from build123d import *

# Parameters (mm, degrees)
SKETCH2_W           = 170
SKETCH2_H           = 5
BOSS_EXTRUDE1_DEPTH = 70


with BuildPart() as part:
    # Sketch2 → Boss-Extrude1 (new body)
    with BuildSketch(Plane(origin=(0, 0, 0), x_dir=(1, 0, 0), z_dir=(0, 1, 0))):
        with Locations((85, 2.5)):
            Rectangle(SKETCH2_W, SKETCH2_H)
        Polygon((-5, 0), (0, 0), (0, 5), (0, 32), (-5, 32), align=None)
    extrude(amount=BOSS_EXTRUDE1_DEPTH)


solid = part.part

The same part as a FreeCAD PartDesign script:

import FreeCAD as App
import Part
import Sketcher

doc = App.newDocument("Part")
body = doc.addObject("PartDesign::Body", "Body")

sketch1 = body.newObject("Sketcher::SketchObject", "Sketch")
sketch1.AttachmentSupport = (doc.getObject("XZ_Plane"), [""])
sketch1.MapMode = "FlatFace"
sketch1.addGeometry(Part.LineSegment(App.Vector(170, 0, 0), App.Vector(170, -5, 0)), False)
sketch1.addGeometry(Part.LineSegment(App.Vector(170, -5, 0), App.Vector(0, -5, 0)), False)
sketch1.addGeometry(Part.LineSegment(App.Vector(0, -5, 0), App.Vector(0, -32, 0)), False)
sketch1.addGeometry(Part.LineSegment(App.Vector(0, -32, 0), App.Vector(-5, -32, 0)), False)
sketch1.addGeometry(Part.LineSegment(App.Vector(-5, -32, 0), App.Vector(-5, 0, 0)), False)
sketch1.addGeometry(Part.LineSegment(App.Vector(-5, 0, 0), App.Vector(170, 0, 0)), False)
sketch1.addConstraint(Sketcher.Constraint("Coincident", 0, 2, 1, 1))
sketch1.addConstraint(Sketcher.Constraint("Coincident", 1, 2, 2, 1))
sketch1.addConstraint(Sketcher.Constraint("Coincident", 2, 2, 3, 1))
sketch1.addConstraint(Sketcher.Constraint("Coincident", 3, 2, 4, 1))
sketch1.addConstraint(Sketcher.Constraint("Coincident", 4, 2, 5, 1))
sketch1.addConstraint(Sketcher.Constraint("Coincident", 5, 2, 0, 1))
sketch1.addConstraint(Sketcher.Constraint("Vertical", 0))
sketch1.addConstraint(Sketcher.Constraint("Horizontal", 1))
sketch1.addConstraint(Sketcher.Constraint("Vertical", 2))
sketch1.addConstraint(Sketcher.Constraint("Horizontal", 3))
sketch1.addConstraint(Sketcher.Constraint("Vertical", 4))
sketch1.addConstraint(Sketcher.Constraint("Horizontal", 5))
sketch1.addConstraint(Sketcher.Constraint("PointOnObject", 1, 2, -2))
sketch1.addConstraint(Sketcher.Constraint("PointOnObject", 4, 2, -1))
sketch1.addConstraint(Sketcher.Constraint("Equal", 3, 0))
sketch1.addConstraint(Sketcher.Constraint("DistanceX", 1, 2, 1, 1, 170.0))
sketch1.addConstraint(Sketcher.Constraint("DistanceX", 3, 2, 3, 1, 5.0))
sketch1.addConstraint(Sketcher.Constraint("DistanceY", 2, 2, 2, 1, 27.0))
pad1 = body.newObject("PartDesign::Pad", "Pad")
pad1.Profile = sketch1
pad1.Length = 70
pad1.Reversed = True

doc.recompute()
